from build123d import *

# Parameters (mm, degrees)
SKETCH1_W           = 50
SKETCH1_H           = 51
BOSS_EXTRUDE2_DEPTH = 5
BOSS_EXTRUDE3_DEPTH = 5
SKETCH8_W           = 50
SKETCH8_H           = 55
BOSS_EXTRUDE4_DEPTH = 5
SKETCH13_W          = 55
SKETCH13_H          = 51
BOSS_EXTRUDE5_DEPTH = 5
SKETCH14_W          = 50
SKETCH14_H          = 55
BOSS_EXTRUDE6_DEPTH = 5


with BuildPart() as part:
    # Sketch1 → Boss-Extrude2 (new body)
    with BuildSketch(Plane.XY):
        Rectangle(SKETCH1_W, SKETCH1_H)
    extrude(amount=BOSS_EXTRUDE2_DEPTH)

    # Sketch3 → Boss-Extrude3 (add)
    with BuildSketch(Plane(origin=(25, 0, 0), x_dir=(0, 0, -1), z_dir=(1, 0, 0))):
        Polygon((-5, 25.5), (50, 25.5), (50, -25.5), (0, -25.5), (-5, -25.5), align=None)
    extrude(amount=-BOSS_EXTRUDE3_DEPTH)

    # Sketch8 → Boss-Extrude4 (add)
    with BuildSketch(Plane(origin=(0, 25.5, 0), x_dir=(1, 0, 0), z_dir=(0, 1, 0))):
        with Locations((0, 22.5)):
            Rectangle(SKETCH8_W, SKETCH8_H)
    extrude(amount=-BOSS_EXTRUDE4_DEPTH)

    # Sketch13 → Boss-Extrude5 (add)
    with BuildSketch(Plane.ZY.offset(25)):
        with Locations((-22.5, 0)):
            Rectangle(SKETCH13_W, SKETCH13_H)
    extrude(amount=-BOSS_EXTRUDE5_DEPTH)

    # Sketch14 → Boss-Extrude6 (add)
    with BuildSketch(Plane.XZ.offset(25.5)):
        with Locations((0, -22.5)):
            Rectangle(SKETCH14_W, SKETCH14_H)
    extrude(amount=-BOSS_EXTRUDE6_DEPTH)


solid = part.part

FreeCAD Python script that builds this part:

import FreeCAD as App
import Part
import Sketcher
from FreeCAD import Vector
Q = App.Units.Quantity

doc = App.newDocument("Part")
body = doc.addObject("PartDesign::Body", "Body")

# Sketch on XY plane
sketch1 = body.newObject("Sketcher::SketchObject", "Sketch")
sketch1.AttachmentSupport = (doc.getObject("XY_Plane"), [""])
sketch1.MapMode = "FlatFace"
sketch1.addGeometry([
    Part.LineSegment(Vector(-25, 26, 0), Vector(-25, -26, 0)),
    Part.LineSegment(Vector(-25, -26, 0), Vector(25, -26, 0)),
    Part.LineSegment(Vector(25, -26, 0), Vector(25, 26, 0)),
    Part.LineSegment(Vector(25, 26, 0), Vector(-25, 26, 0)),
], False)
sketch1.addConstraint([
    Sketcher.Constraint("Coincident", 0, 2, 1, 1),
    Sketcher.Constraint("Coincident", 1, 2, 2, 1),
    Sketcher.Constraint("Coincident", 2, 2, 3, 1),
    Sketcher.Constraint("Coincident", 3, 2, 0, 1),
    Sketcher.Constraint("Vertical", 0),
    Sketcher.Constraint("Horizontal", 1),
    Sketcher.Constraint("Vertical", 2),
    Sketcher.Constraint("Horizontal", 3),
    Sketcher.Constraint("Symmetric", 0, 2, 2, 2, -1, 1),
    Sketcher.Constraint("DistanceX", 1, 1, 1, 2, Q("50 mm")),
    Sketcher.Constraint("DistanceY", 0, 2, 0, 1, Q("51 mm")),
])
pad1 = body.newObject("PartDesign::Pad", "Pad")
pad1.Profile = sketch1
pad1.Length = 5

# Sketch on YZ plane
sketch2 = body.newObject("Sketcher::SketchObject", "Sketch001")
sketch2.AttachmentSupport = (doc.getObject("YZ_Plane"), [""])
sketch2.MapMode = "FlatFace"
sketch2.AttachmentOffset = App.Placement(Vector(0, 0, 25), App.Rotation())
sketch2.addGeometry([
    Part.LineSegment(Vector(26, -50, 0), Vector(26, 5, 0)),
    Part.LineSegment(Vector(26, 5, 0), Vector(-26, 5, 0)),
    Part.LineSegment(Vector(-26, 5, 0), Vector(-26, -50, 0)),
    Part.LineSegment(Vector(-26, -50, 0), Vector(26, -50, 0)),
], False)
sketch2.addConstraint([
    Sketcher.Constraint("Coincident", 0, 2, 1, 1),
    Sketcher.Constraint("Coincident", 1, 2, 2, 1),
    Sketcher.Constraint("Coincident", 2, 2, 3, 1),
    Sketcher.Constraint("Coincident", 3, 2, 0, 1),
    Sketcher.Constraint("Vertical", 0),
    Sketcher.Constraint("Horizontal", 1),
    Sketcher.Constraint("Vertical", 2),
    Sketcher.Constraint("Horizontal", 3),
    Sketcher.Constraint("DistanceX", 1, 2, 1, 1, Q("51 mm")),
    Sketcher.Constraint("DistanceY", 0, 1, 0, 2, Q("55 mm")),
    Sketcher.Constraint("DistanceY", -1, 1, 0, 2, Q("5 mm")),
    Sketcher.Constraint("DistanceX", -1, 1, 0, 2, Q("25.5 mm")),
])
pad2 = body.newObject("PartDesign::Pad", "Pad001")
pad2.Profile = sketch2
pad2.Length = 5
pad2.Reversed = True

# Sketch on XZ plane
sketch3 = body.newObject("Sketcher::SketchObject", "Sketch002")
sketch3.AttachmentSupport = (doc.getObject("XZ_Plane"), [""])
sketch3.MapMode = "FlatFace"
sketch3.AttachmentOffset = App.Placement(Vector(0, 0, -25.5), App.Rotation())
sketch3.addGeometry([
    Part.LineSegment(Vector(-25, -50, 0), Vector(-25, 5, 0)),
    Part.LineSegment(Vector(-25, 5, 0), Vector(25, 5, 0)),
    Part.LineSegment(Vector(25, 5, 0), Vector(25, -50, 0)),
    Part.LineSegment(Vector(25, -50, 0), Vector(-25, -50, 0)),
], False)
sketch3.addConstraint([
    Sketcher.Constraint("Coincident", 0, 2, 1, 1),
    Sketcher.Constraint("Coincident", 1, 2, 2, 1),
    Sketcher.Constraint("Coincident", 2, 2, 3, 1),
    Sketcher.Constraint("Coincident", 3, 2, 0, 1),
    Sketcher.Constraint("Vertical", 0),
    Sketcher.Constraint("Horizontal", 1),
    Sketcher.Constraint("Vertical", 2),
    Sketcher.Constraint("Horizontal", 3),
    Sketcher.Constraint("DistanceX", 1, 1, 1, 2, Q("50 mm")),
    Sketcher.Constraint("DistanceY", 0, 1, 0, 2, Q("55 mm")),
    Sketcher.Constraint("DistanceX", 0, 2, -1, 1, Q("25 mm")),
    Sketcher.Constraint("DistanceY", -1, 1, 0, 2, Q("5 mm")),
])
pad3 = body.newObject("PartDesign::Pad", "Pad002")
pad3.Profile = sketch3
pad3.Length = 5

# Sketch on YZ plane
sketch4 = body.newObject("Sketcher::SketchObject", "Sketch003")
sketch4.AttachmentSupport = (doc.getObject("YZ_Plane"), [""])
sketch4.MapMode = "FlatFace"
sketch4.AttachmentOffset = App.Placement(Vector(0, 0, -25), App.Rotation())
sketch4.addGeometry([
    Part.LineSegment(Vector(26, -50, 0), Vector(-26, -50, 0)),
    Part.LineSegment(Vector(-26, -50, 0), Vector(-26, 5, 0)),
    Part.LineSegment(Vector(-26, 5, 0), Vector(26, 5, 0)),
    Part.LineSegment(Vector(26, 5, 0), Vector(26, -50, 0)),
], False)
sketch4.addConstraint([
    Sketcher.Constraint("Coincident", 0, 2, 1, 1),
    Sketcher.Constraint("Coincident", 1, 2, 2, 1),
    Sketcher.Constraint("Coincident", 2, 2, 3, 1),
    Sketcher.Constraint("Coincident", 3, 2, 0, 1),
    Sketcher.Constraint("Horizontal", 0),
    Sketcher.Constraint("Vertical", 1),
    Sketcher.Constraint("Horizontal", 2),
    Sketcher.Constraint("Vertical", 3),
    Sketcher.Constraint("DistanceX", 0, 2, 0, 1, Q("51 mm")),
    Sketcher.Constraint("DistanceY", 1, 1, 1, 2, Q("55 mm")),
    Sketcher.Constraint("DistanceY", 0, 2, -1, 1, Q("50 mm")),
    Sketcher.Constraint("DistanceX", 0, 2, -1, 1, Q("25.5 mm")),
])
pad4 = body.newObject("PartDesign::Pad", "Pad003")
pad4.Profile = sketch4
pad4.Length = 5

# Sketch on XZ plane
sketch5 = body.newObject("Sketcher::SketchObject", "Sketch004")
sketch5.AttachmentSupport = (doc.getObject("XZ_Plane"), [""])
sketch5.MapMode = "FlatFace"
sketch5.AttachmentOffset = App.Placement(Vector(0, 0, 25.5), App.Rotation())
sketch5.addGeometry([
    Part.LineSegment(Vector(-25, 5, 0), Vector(-25, -50, 0)),
    Part.LineSegment(Vector(-25, -50, 0), Vector(25, -50, 0)),
    Part.LineSegment(Vector(25, -50, 0), Vector(25, 5, 0)),
    Part.LineSegment(Vector(25, 5, 0), Vector(-25, 5, 0)),
], False)
sketch5.addConstraint([
    Sketcher.Constraint("Coincident", 0, 2, 1, 1),
    Sketcher.Constraint("Coincident", 1, 2, 2, 1),
    Sketcher.Constraint("Coincident", 2, 2, 3, 1),
    Sketcher.Constraint("Coincident", 3, 2, 0, 1),
    Sketcher.Constraint("Vertical", 0),
    Sketcher.Constraint("Horizontal", 1),
    Sketcher.Constraint("Vertical", 2),
    Sketcher.Constraint("Horizontal", 3),
    Sketcher.Constraint("DistanceX", 1, 1, 1, 2, Q("50 mm")),
    Sketcher.Constraint("DistanceY", 0, 2, 0, 1, Q("55 mm")),
    Sketcher.Constraint("DistanceX", 0, 2, -1, 1, Q("25 mm")),
    Sketcher.Constraint("DistanceY", 0, 2, -1, 1, Q("50 mm")),
])
pad5 = body.newObject("PartDesign::Pad", "Pad004")
pad5.Profile = sketch5
pad5.Length = 5
pad5.Reversed = True

doc.recompute()
